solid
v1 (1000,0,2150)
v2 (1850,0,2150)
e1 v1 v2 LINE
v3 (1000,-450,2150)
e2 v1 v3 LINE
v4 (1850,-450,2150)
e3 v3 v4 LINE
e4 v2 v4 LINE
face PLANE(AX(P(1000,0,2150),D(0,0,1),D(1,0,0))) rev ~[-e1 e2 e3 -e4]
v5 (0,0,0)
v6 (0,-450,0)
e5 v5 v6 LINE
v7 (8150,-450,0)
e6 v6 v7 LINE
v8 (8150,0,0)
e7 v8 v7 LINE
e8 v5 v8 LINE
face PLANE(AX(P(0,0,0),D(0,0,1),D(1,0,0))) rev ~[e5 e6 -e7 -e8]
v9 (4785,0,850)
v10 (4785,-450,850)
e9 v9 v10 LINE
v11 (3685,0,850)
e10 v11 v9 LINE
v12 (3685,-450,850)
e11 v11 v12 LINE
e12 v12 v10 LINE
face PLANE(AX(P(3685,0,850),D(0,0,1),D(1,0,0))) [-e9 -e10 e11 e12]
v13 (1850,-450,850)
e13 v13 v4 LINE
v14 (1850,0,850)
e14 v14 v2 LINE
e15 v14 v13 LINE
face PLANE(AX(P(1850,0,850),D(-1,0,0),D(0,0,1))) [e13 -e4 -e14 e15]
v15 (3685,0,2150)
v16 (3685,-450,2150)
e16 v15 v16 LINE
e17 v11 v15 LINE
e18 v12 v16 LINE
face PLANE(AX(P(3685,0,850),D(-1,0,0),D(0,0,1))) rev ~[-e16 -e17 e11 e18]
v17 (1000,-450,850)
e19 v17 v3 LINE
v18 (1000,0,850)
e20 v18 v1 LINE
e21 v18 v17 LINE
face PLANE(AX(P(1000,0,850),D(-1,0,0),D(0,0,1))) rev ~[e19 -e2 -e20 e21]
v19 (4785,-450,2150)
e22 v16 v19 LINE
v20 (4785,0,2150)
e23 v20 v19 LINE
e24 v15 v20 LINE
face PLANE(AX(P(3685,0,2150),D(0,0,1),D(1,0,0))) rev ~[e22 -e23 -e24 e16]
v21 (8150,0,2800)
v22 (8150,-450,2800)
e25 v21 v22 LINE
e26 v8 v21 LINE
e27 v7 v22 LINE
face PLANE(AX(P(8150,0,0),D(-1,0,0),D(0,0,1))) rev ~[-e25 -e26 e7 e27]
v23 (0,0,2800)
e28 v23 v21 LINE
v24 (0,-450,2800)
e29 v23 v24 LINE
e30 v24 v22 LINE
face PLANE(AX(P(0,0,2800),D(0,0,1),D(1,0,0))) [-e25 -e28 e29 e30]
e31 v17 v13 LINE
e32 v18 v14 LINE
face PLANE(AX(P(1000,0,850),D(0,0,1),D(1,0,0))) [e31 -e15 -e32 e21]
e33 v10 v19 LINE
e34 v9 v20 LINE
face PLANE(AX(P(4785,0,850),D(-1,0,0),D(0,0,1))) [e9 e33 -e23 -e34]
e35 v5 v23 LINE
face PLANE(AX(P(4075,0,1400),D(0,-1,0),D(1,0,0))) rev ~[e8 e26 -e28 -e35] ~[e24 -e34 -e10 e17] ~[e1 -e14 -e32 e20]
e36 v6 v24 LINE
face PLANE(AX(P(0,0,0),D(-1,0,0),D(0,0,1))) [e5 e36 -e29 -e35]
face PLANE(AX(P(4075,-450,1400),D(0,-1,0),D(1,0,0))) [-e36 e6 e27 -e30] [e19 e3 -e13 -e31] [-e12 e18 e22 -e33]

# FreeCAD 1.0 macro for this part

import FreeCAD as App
import Part
import Sketcher
Q = App.Units.Quantity


def add_polygon(sketch, points):
    """Adds a closed chain of lines whose ends are joined by coincident constraints."""
    first, n = sketch.GeometryCount, len(points)
    for a, b in zip(points, points[1:] + points[:1]):
        sketch.addGeometry(Part.LineSegment(App.Vector(*a, 0), App.Vector(*b, 0)), False)
    for i in range(n):
        sketch.addConstraint(Sketcher.Constraint("Coincident", first + i, 2, first + (i + 1) % n, 1))

doc = App.newDocument("Part")
body = doc.addObject("PartDesign::Body", "Body")

# Sketch on XZ plane
sketch1 = doc.addObject("Sketcher::SketchObject", "Sketch")
body.addObject(sketch1)
sketch1.AttachmentSupport = (doc.XZ_Plane, [""])
sketch1.MapMode = "FlatFace"
add_polygon(sketch1, [(0, 2800), (0, 0), (8150, 0), (8150, 2800)])  # lines 0-3
add_polygon(sketch1, [(1850, 850), (1000, 850), (1000, 2150), (1850, 2150)])  # lines 4-7
add_polygon(sketch1, [(4785, 850), (3685, 850), (3685, 2150), (4785, 2150)])  # lines 8-11
sketch1.addConstraint(Sketcher.Constraint("Vertical", 0))
sketch1.addConstraint(Sketcher.Constraint("Horizontal", 1))
sketch1.addConstraint(Sketcher.Constraint("Vertical", 2))
sketch1.addConstraint(Sketcher.Constraint("Horizontal", 3))
sketch1.addConstraint(Sketcher.Constraint("Horizontal", 4))
sketch1.addConstraint(Sketcher.Constraint("Vertical", 5))
sketch1.addConstraint(Sketcher.Constraint("Horizontal", 6))
sketch1.addConstraint(Sketcher.Constraint("Vertical", 7))
sketch1.addConstraint(Sketcher.Constraint("Horizontal", 8))
sketch1.addConstraint(Sketcher.Constraint("Vertical", 9))
sketch1.addConstraint(Sketcher.Constraint("Horizontal", 10))
sketch1.addConstraint(Sketcher.Constraint("Vertical", 11))
sketch1.addConstraint(Sketcher.Constraint("Coincident", 0, 2, -1, 1))
sketch1.addConstraint(Sketcher.Constraint("Horizontal", 7, 2, 8, 2))
sketch1.addConstraint(Sketcher.Constraint("Horizontal", 6, 2, 9, 2))
sketch1.addConstraint(Sketcher.Constraint("DistanceX", 1, 1, 1, 2, Q("8150 mm")))
sketch1.addConstraint(Sketcher.Constraint("DistanceX", 4, 2, 4, 1, Q("850 mm")))
sketch1.addConstraint(Sketcher.Constraint("DistanceX", 8, 2, 8, 1, Q("1100 mm")))
sketch1.addConstraint(Sketcher.Constraint("DistanceY", 0, 2, 0, 1, Q("2800 mm")))
sketch1.addConstraint(Sketcher.Constraint("DistanceY", 5, 1, 5, 2, Q("1300 mm")))
sketch1.addConstraint(Sketcher.Constraint("DistanceX", -1, 1, 4, 2, Q("1000 mm")))
sketch1.addConstraint(Sketcher.Constraint("DistanceY", -1, 1, 4, 2, Q("850 mm")))
sketch1.addConstraint(Sketcher.Constraint("DistanceX", -1, 1, 8, 2, Q("3685 mm")))
pad1 = doc.addObject("PartDesign::Pad", "Pad")
body.addObject(pad1)
pad1.Profile = sketch1
pad1.Length = 450

doc.recompute()
